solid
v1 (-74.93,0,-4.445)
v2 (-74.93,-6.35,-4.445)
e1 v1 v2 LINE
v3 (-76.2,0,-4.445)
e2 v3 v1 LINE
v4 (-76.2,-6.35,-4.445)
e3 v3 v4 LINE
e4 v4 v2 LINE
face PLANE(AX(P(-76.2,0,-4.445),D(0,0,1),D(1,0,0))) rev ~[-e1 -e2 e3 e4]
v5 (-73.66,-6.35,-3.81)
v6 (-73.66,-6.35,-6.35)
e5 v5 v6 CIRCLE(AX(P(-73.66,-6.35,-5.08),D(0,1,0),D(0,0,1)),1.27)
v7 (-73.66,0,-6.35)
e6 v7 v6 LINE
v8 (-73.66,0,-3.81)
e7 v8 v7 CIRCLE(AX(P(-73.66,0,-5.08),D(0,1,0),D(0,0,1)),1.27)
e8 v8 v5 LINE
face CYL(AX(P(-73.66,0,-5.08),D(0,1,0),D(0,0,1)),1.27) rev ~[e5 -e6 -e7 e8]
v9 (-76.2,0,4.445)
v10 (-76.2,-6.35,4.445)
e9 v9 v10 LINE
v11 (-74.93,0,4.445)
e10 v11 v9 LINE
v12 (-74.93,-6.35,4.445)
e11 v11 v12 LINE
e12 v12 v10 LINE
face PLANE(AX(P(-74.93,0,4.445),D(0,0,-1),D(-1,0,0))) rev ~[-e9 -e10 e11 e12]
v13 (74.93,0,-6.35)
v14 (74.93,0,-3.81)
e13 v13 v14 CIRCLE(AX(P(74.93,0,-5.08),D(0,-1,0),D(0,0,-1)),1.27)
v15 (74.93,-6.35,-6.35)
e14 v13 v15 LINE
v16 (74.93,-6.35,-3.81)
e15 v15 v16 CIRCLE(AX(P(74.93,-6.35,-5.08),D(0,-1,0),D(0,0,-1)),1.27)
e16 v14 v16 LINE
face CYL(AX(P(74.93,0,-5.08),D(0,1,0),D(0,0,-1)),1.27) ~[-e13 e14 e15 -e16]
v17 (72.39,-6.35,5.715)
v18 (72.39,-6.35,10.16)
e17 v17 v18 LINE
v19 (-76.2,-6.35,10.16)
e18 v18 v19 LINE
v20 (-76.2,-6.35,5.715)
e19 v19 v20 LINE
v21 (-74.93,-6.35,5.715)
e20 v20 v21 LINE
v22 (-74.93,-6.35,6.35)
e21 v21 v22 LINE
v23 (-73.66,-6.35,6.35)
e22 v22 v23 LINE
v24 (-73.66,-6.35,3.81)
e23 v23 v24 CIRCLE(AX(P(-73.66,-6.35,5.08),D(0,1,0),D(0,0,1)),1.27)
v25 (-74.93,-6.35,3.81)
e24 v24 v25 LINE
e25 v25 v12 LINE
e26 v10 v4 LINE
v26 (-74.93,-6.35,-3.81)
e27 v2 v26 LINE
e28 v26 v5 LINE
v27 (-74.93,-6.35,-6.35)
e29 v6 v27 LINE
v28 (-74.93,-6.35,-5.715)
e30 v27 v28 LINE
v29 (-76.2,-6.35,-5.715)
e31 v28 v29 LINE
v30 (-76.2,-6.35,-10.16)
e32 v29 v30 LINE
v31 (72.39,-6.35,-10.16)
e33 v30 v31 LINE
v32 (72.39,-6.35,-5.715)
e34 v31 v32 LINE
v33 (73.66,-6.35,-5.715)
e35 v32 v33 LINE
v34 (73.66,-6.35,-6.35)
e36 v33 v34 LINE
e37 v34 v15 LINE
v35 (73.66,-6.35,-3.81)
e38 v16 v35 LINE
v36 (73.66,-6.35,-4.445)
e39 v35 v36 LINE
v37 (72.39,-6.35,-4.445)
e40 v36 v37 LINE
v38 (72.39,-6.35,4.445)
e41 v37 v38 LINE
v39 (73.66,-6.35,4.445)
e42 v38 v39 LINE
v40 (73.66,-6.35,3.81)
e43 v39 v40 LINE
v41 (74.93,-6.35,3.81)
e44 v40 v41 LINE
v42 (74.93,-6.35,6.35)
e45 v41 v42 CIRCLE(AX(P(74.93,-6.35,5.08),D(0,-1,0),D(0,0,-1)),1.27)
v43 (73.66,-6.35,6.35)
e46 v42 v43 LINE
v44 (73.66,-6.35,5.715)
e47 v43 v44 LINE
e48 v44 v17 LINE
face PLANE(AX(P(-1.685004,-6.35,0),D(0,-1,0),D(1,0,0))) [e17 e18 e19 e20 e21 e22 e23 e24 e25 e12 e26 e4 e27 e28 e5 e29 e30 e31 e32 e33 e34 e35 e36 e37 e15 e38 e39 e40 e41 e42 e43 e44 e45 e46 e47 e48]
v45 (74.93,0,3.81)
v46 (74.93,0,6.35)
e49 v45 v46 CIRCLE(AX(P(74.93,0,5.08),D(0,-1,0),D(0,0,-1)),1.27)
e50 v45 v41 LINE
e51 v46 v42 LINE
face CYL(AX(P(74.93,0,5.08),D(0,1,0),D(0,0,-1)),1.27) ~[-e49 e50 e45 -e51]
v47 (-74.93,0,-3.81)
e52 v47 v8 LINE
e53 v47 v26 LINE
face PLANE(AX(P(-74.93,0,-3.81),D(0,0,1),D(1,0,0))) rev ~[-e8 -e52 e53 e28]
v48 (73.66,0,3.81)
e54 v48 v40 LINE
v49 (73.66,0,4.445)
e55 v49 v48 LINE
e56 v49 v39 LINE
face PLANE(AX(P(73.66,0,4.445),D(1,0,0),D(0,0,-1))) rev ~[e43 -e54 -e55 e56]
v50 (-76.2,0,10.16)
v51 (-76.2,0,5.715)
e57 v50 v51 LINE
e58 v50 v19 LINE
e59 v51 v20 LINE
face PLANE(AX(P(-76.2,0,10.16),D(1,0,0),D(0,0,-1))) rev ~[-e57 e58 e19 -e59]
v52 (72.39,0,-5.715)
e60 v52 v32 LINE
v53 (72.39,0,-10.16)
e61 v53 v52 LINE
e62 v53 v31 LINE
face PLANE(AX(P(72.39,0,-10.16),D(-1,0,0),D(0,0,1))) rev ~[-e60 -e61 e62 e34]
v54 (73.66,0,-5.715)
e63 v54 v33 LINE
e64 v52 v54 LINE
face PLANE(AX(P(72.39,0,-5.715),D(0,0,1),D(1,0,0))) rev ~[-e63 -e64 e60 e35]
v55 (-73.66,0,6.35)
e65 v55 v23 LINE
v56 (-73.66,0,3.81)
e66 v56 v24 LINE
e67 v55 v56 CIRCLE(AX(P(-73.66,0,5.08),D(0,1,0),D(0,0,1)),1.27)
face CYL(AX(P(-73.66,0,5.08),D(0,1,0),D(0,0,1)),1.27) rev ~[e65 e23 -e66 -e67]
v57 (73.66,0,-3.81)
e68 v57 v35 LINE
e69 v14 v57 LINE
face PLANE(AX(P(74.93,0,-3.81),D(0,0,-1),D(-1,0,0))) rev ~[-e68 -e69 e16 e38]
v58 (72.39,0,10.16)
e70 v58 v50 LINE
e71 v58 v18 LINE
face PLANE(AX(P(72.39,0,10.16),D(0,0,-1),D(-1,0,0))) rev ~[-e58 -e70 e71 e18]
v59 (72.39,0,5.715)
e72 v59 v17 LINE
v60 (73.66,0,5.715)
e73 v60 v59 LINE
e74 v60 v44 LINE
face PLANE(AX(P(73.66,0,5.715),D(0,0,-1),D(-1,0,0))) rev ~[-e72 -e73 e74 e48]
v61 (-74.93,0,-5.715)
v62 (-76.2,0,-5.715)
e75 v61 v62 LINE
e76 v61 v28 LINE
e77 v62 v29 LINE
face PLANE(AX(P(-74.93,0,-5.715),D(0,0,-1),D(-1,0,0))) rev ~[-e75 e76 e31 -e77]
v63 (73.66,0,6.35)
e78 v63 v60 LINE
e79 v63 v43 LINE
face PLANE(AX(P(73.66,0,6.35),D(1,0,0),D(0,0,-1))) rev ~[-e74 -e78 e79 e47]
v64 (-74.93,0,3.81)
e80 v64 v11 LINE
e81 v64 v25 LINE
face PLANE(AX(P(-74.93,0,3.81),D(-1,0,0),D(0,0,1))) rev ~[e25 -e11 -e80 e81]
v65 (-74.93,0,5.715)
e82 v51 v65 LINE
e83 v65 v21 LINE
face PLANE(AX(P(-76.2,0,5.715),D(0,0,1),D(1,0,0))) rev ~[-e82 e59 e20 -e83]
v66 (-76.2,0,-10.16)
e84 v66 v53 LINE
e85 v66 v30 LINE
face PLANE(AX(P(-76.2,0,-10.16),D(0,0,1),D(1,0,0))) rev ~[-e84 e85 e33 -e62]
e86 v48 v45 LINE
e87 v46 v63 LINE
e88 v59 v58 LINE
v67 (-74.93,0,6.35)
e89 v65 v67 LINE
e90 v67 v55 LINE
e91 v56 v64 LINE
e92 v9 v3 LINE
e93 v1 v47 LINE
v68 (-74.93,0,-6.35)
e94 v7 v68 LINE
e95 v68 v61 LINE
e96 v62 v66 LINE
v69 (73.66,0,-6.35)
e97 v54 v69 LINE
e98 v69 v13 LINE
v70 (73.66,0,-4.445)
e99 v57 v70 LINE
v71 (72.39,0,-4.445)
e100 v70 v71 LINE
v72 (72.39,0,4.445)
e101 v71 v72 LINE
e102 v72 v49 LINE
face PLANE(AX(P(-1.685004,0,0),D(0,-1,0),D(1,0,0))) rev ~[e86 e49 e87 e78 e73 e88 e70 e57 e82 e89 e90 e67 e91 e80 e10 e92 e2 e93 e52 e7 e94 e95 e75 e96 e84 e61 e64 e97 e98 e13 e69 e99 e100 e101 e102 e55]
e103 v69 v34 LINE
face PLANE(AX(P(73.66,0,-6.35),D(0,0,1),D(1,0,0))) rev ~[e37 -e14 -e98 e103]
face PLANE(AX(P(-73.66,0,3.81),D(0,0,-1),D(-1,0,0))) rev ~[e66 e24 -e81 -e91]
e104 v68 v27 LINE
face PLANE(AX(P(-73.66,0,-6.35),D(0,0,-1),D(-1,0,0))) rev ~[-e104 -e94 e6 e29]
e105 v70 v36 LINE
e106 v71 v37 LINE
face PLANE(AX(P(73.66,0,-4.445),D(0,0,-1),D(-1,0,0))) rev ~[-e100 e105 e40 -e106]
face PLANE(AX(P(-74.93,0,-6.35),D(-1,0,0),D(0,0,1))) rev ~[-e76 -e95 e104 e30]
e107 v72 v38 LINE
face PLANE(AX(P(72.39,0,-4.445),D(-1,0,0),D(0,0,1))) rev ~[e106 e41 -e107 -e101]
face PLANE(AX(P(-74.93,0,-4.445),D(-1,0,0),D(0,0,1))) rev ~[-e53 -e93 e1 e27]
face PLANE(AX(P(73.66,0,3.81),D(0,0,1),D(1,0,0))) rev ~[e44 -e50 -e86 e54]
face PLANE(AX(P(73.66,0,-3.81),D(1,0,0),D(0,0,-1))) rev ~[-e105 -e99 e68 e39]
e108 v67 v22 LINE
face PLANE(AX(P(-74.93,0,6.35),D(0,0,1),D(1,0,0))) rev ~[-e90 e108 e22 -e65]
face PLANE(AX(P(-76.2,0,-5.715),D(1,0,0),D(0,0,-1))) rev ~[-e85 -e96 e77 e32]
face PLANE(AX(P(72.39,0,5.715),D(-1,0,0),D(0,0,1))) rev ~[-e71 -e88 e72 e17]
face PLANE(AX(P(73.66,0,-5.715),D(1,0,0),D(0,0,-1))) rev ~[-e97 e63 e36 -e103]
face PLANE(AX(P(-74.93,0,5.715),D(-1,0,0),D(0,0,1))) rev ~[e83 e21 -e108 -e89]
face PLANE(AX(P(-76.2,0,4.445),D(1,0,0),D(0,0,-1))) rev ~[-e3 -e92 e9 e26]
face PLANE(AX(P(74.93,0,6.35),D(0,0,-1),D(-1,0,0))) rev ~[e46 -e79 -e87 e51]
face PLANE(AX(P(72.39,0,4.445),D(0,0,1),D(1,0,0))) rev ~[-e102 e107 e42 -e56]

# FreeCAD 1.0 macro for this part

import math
import FreeCAD as App
import Part
import Sketcher

V = App.Vector
Q = App.Units.Quantity

doc = App.newDocument("Part")
body = doc.addObject("PartDesign::Body", "Body")

# Sketch on XZ plane
sketch1 = doc.addObject("Sketcher::SketchObject", "Sketch")
body.addObject(sketch1)
sketch1.AttachmentSupport = (doc.XZ_Plane, [""])
sketch1.MapMode = "FlatFace"
sketch1.addGeometry([
    Part.LineSegment(V(-76.2, -10.2, 0), V(72.4, -10.2, 0)),  # 0
    Part.LineSegment(V(72.4, -10.2, 0), V(72.4, -5.7, 0)),  # 1
    Part.LineSegment(V(72.4, -5.7, 0), V(73.7, -5.7, 0)),  # 2
    Part.LineSegment(V(73.7, -5.7, 0), V(73.7, -6.3, 0)),  # 3
    Part.LineSegment(V(73.7, -6.3, 0), V(74.9, -6.3, 0)),  # 4
    Part.ArcOfCircle(Part.Circle(V(74.9, -5.1, 0), V(0, 0, 1), 1.3), math.radians(-90), math.radians(90)),  # 5
    Part.LineSegment(V(74.9, -3.8, 0), V(73.7, -3.8, 0)),  # 6
    Part.LineSegment(V(73.7, -3.8, 0), V(73.7, -4.4, 0)),  # 7
    Part.LineSegment(V(73.7, -4.4, 0), V(72.4, -4.4, 0)),  # 8
    Part.LineSegment(V(72.4, -4.4, 0), V(72.4, 4.4, 0)),  # 9
    Part.LineSegment(V(72.4, 4.4, 0), V(73.7, 4.4, 0)),  # 10
    Part.LineSegment(V(73.7, 4.4, 0), V(73.7, 3.8, 0)),  # 11
    Part.LineSegment(V(73.7, 3.8, 0), V(74.9, 3.8, 0)),  # 12
    Part.ArcOfCircle(Part.Circle(V(74.9, 5.1, 0), V(0, 0, 1), 1.3), math.radians(-90), math.radians(90)),  # 13
    Part.LineSegment(V(74.9, 6.3, 0), V(73.7, 6.3, 0)),  # 14
    Part.LineSegment(V(73.7, 6.3, 0), V(73.7, 5.7, 0)),  # 15
    Part.LineSegment(V(73.7, 5.7, 0), V(72.4, 5.7, 0)),  # 16
    Part.LineSegment(V(72.4, 5.7, 0), V(72.4, 10.2, 0)),  # 17
    Part.LineSegment(V(72.4, 10.2, 0), V(-76.2, 10.2, 0)),  # 18
    Part.LineSegment(V(-76.2, 10.2, 0), V(-76.2, 5.7, 0)),  # 19
    Part.LineSegment(V(-76.2, 5.7, 0), V(-74.9, 5.7, 0)),  # 20
    Part.LineSegment(V(-74.9, 5.7, 0), V(-74.9, 6.3, 0)),  # 21
    Part.LineSegment(V(-74.9, 6.3, 0), V(-73.7, 6.3, 0)),  # 22
    Part.ArcOfCircle(Part.Circle(V(-73.7, 5.1, 0), V(0, 0, 1), 1.3), math.radians(-90), math.radians(90)),  # 23
    Part.LineSegment(V(-73.7, 3.8, 0), V(-74.9, 3.8, 0)),  # 24
    Part.LineSegment(V(-74.9, 3.8, 0), V(-74.9, 4.4, 0)),  # 25
    Part.LineSegment(V(-74.9, 4.4, 0), V(-76.2, 4.4, 0)),  # 26
    Part.LineSegment(V(-76.2, 4.4, 0), V(-76.2, -4.4, 0)),  # 27
    Part.LineSegment(V(-76.2, -4.4, 0), V(-74.9, -4.4, 0)),  # 28
    Part.LineSegment(V(-74.9, -4.4, 0), V(-74.9, -3.8, 0)),  # 29
    Part.LineSegment(V(-74.9, -3.8, 0), V(-73.7, -3.8, 0)),  # 30
    Part.ArcOfCircle(Part.Circle(V(-73.7, -5.1, 0), V(0, 0, 1), 1.3), math.radians(-90), math.radians(90)),  # 31
    Part.LineSegment(V(-73.7, -6.3, 0), V(-74.9, -6.3, 0)),  # 32
    Part.LineSegment(V(-74.9, -6.3, 0), V(-74.9, -5.7, 0)),  # 33
    Part.LineSegment(V(-74.9, -5.7, 0), V(-76.2, -5.7, 0)),  # 34
    Part.LineSegment(V(-76.2, -5.7, 0), V(-76.2, -10.2, 0)),  # 35
], False)
sketch1.addConstraint([
    Sketcher.Constraint("Coincident", 0, 2, 1, 1),
    Sketcher.Constraint("Coincident", 1, 2, 2, 1),
    Sketcher.Constraint("Coincident", 2, 2, 3, 1),
    Sketcher.Constraint("Coincident", 3, 2, 4, 1),
    Sketcher.Constraint("Tangent", 4, 2, 5, 1),
    Sketcher.Constraint("Tangent", 5, 2, 6, 1),
    Sketcher.Constraint("Coincident", 6, 2, 7, 1),
    Sketcher.Constraint("Coincident", 7, 2, 8, 1),
    Sketcher.Constraint("Coincident", 8, 2, 9, 1),
    Sketcher.Constraint("Coincident", 9, 2, 10, 1),
    Sketcher.Constraint("Coincident", 10, 2, 11, 1),
    Sketcher.Constraint("Coincident", 11, 2, 12, 1),
    Sketcher.Constraint("Tangent", 12, 2, 13, 1),
    Sketcher.Constraint("Tangent", 13, 2, 14, 1),
    Sketcher.Constraint("Coincident", 14, 2, 15, 1),
    Sketcher.Constraint("Coincident", 15, 2, 16, 1),
    Sketcher.Constraint("Coincident", 16, 2, 17, 1),
    Sketcher.Constraint("Coincident", 17, 2, 18, 1),
    Sketcher.Constraint("Coincident", 18, 2, 19, 1),
    Sketcher.Constraint("Coincident", 19, 2, 20, 1),
    Sketcher.Constraint("Coincident", 20, 2, 21, 1),
    Sketcher.Constraint("Coincident", 21, 2, 22, 1),
    Sketcher.Constraint("Tangent", 22, 2, 23, 2),
    Sketcher.Constraint("Tangent", 23, 1, 24, 1),
    Sketcher.Constraint("Coincident", 24, 2, 25, 1),
    Sketcher.Constraint("Coincident", 25, 2, 26, 1),
    Sketcher.Constraint("Coincident", 26, 2, 27, 1),
    Sketcher.Constraint("Coincident", 27, 2, 28, 1),
    Sketcher.Constraint("Coincident", 28, 2, 29, 1),
    Sketcher.Constraint("Coincident", 29, 2, 30, 1),
    Sketcher.Constraint("Tangent", 30, 2, 31, 2),
    Sketcher.Constraint("Tangent", 31, 1, 32, 1),
    Sketcher.Constraint("Coincident", 32, 2, 33, 1),
    Sketcher.Constraint("Coincident", 33, 2, 34, 1),
    Sketcher.Constraint("Coincident", 34, 2, 35, 1),
    Sketcher.Constraint("Coincident", 35, 2, 0, 1),
    Sketcher.Constraint("Horizontal", 0),
    Sketcher.Constraint("Vertical", 1),
    Sketcher.Constraint("Horizontal", 2),
    Sketcher.Constraint("Vertical", 3),
    Sketcher.Constraint("Horizontal", 4),
    Sketcher.Constraint("Horizontal", 6),
    Sketcher.Constraint("Vertical", 7),
    Sketcher.Constraint("Horizontal", 8),
    Sketcher.Constraint("Vertical", 9),
    Sketcher.Constraint("Horizontal", 10),
    Sketcher.Constraint("Vertical", 11),
    Sketcher.Constraint("Horizontal", 12),
    Sketcher.Constraint("Horizontal", 14),
    Sketcher.Constraint("Vertical", 15),
    Sketcher.Constraint("Horizontal", 16),
    Sketcher.Constraint("Vertical", 17),
    Sketcher.Constraint("Horizontal", 18),
    Sketcher.Constraint("Vertical", 19),
    Sketcher.Constraint("Horizontal", 20),
    Sketcher.Constraint("Vertical", 21),
    Sketcher.Constraint("Horizontal", 22),
    Sketcher.Constraint("Horizontal", 24),
    Sketcher.Constraint("Vertical", 25),
    Sketcher.Constraint("Horizontal", 26),
    Sketcher.Constraint("Vertical", 27),
    Sketcher.Constraint("Horizontal", 28),
    Sketcher.Constraint("Vertical", 29),
    Sketcher.Constraint("Horizontal", 30),
    Sketcher.Constraint("Horizontal", 32),
    Sketcher.Constraint("Vertical", 33),
    Sketcher.Constraint("Horizontal", 34),
    Sketcher.Constraint("Vertical", 35),
    Sketcher.Constraint("Equal", 5, 13),
    Sketcher.Constraint("Equal", 13, 23),
    Sketcher.Constraint("Equal", 23, 31),
    Sketcher.Constraint("Symmetric", 4, 2, 21, 2, -1, 1),
    Sketcher.Constraint("Symmetric", 12, 2, 29, 2, -1, 1),
    Sketcher.Constraint("Symmetric", 13, 2, 21, 2, -2),
    Sketcher.Constraint("Symmetric", 7, 2, 10, 2, -1),
    Sketcher.Constraint("Symmetric", 2, 2, 15, 2, -1),
    Sketcher.Constraint("Symmetric", 0, 2, 17, 2, -1),
    Sketcher.Constraint("Symmetric", 25, 2, 28, 2, -1),
    Sketcher.Constraint("Symmetric", 20, 2, 33, 2, -1),
    Sketcher.Constraint("Horizontal", 16, 2, 19, 2),
    Sketcher.Constraint("Horizontal", 10, 2, 25, 2),
    Sketcher.Constraint("Vertical", 23, 3, 31, 3),
    Sketcher.Constraint("Vertical", 3, 2, 6, 2),
    Sketcher.Constraint("Vertical", 1, 2, 8, 2),
    Sketcher.Constraint("Vertical", 19, 2, 26, 2),
    Sketcher.Constraint("Vertical", 27, 2, 34, 2),
    Sketcher.Constraint("Equal", 2, 4),
    Sketcher.Constraint("Equal", 16, 20),
    Sketcher.Constraint("Equal", 20, 22),
    Sketcher.Constraint("Equal", 3, 7),
    Sketcher.Constraint("Radius", 5, Q("0.05 in")),
    Sketcher.Constraint("DistanceX", 18, 2, -1, 1, Q("3 in")),
    Sketcher.Constraint("DistanceX", 0, 1, 0, 2, Q("5.85 in")),
    Sketcher.Constraint("DistanceY", 9, 1, 9, 2, Q("0.35 in")),
    Sketcher.Constraint("DistanceY", 5, 3, -1, 1, Q("0.2 in")),
    Sketcher.Constraint("DistanceY", 0, 2, -1, 1, Q("0.4 in")),
])
pad1 = doc.addObject("PartDesign::Pad", "Pad")
body.addObject(pad1)
pad1.Profile = sketch1
pad1.Length = Q("0.25 in")

doc.recompute()
